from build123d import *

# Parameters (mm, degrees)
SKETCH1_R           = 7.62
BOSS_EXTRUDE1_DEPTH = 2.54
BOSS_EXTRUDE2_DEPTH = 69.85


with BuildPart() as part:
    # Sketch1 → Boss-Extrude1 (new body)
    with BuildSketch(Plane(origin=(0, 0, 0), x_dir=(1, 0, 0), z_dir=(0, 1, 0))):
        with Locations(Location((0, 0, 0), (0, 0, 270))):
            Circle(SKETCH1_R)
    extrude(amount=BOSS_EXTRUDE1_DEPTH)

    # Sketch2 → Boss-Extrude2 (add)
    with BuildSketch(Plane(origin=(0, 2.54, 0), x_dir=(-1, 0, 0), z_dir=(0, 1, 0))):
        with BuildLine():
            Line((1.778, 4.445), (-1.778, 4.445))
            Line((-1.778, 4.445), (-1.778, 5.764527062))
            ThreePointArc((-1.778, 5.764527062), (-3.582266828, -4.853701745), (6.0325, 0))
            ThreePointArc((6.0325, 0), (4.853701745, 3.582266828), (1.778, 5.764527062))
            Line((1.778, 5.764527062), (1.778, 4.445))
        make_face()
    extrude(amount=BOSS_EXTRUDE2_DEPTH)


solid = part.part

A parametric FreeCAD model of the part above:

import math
import FreeCAD as App
import Part
import Sketcher

V = App.Vector
Q = App.Units.Quantity

doc = App.newDocument("Part")
body = doc.addObject("PartDesign::Body", "Body")

# Sketch on XZ plane
sketch1 = body.newObject("Sketcher::SketchObject", "Sketch")
sketch1.AttachmentSupport = (doc.getObject("XZ_Plane"), [""])
sketch1.MapMode = "FlatFace"
sketch1.addGeometry(Part.Circle(V(0, 0, 0), V(0, 0, 1), 8), False)
sketch1.addConstraint([
    Sketcher.Constraint("Coincident", 0, 3, -1, 1),
    Sketcher.Constraint("Diameter", 0, Q("0.6 in")),
])
pad1 = body.newObject("PartDesign::Pad", "Pad")
pad1.Profile = sketch1
pad1.Length = Q("0.1 in")
pad1.Reversed = True

# Sketch on XZ plane
sketch2 = body.newObject("Sketcher::SketchObject", "Sketch001")
sketch2.AttachmentSupport = (doc.getObject("XZ_Plane"), [""])
sketch2.MapMode = "FlatFace"
sketch2.AttachmentOffset = App.Placement(V(0, 0, -0.1 * 25.4), App.Rotation())
sketch2.addGeometry([
    Part.LineSegment(V(-1.8, 4.4, 0), V(1.8, 4.4, 0)),  # 0
    Part.LineSegment(V(1.8, 4.4, 0), V(1.8, 5.8, 0)),  # 1
    Part.ArcOfCircle(Part.Circle(V(0, 0, 0), V(0, 0, 1), 6), math.radians(180), math.radians(433)),  # 2
    Part.ArcOfCircle(Part.Circle(V(0, 0, 0), V(0, 0, 1), 6), math.radians(107), math.radians(180)),  # 3
    Part.LineSegment(V(-1.8, 5.8, 0), V(-1.8, 4.4, 0)),  # 4
], False)
sketch2.addConstraint([
    Sketcher.Constraint("Coincident", 0, 2, 1, 1),
    Sketcher.Constraint("Coincident", 1, 2, 2, 2),
    Sketcher.Constraint("Tangent", 2, 1, 3, 2),
    Sketcher.Constraint("Coincident", 3, 1, 4, 1),
    Sketcher.Constraint("Coincident", 4, 2, 0, 1),
    Sketcher.Constraint("Horizontal", 0),
    Sketcher.Constraint("Vertical", 1),
    Sketcher.Constraint("Vertical", 4),
    Sketcher.Constraint("Coincident", 2, 3, -1, 1),
    Sketcher.Constraint("Equal", 2, 3),
    Sketcher.Constraint("PointOnObject", 2, 1, -1),
    Sketcher.Constraint("Horizontal", 1, 2, 3, 1),
    Sketcher.Constraint("DistanceX", 0, 1, 0, 2, Q("0.14 in")),
    Sketcher.Constraint("Radius", 2, Q("0.2375 in")),
    Sketcher.Constraint("DistanceY", -1, 1, 0, 2, Q("0.175 in")),
])
pad2 = body.newObject("PartDesign::Pad", "Pad001")
pad2.Profile = sketch2
pad2.Length = Q("2.75 in")
pad2.Reversed = True

doc.recompute()
